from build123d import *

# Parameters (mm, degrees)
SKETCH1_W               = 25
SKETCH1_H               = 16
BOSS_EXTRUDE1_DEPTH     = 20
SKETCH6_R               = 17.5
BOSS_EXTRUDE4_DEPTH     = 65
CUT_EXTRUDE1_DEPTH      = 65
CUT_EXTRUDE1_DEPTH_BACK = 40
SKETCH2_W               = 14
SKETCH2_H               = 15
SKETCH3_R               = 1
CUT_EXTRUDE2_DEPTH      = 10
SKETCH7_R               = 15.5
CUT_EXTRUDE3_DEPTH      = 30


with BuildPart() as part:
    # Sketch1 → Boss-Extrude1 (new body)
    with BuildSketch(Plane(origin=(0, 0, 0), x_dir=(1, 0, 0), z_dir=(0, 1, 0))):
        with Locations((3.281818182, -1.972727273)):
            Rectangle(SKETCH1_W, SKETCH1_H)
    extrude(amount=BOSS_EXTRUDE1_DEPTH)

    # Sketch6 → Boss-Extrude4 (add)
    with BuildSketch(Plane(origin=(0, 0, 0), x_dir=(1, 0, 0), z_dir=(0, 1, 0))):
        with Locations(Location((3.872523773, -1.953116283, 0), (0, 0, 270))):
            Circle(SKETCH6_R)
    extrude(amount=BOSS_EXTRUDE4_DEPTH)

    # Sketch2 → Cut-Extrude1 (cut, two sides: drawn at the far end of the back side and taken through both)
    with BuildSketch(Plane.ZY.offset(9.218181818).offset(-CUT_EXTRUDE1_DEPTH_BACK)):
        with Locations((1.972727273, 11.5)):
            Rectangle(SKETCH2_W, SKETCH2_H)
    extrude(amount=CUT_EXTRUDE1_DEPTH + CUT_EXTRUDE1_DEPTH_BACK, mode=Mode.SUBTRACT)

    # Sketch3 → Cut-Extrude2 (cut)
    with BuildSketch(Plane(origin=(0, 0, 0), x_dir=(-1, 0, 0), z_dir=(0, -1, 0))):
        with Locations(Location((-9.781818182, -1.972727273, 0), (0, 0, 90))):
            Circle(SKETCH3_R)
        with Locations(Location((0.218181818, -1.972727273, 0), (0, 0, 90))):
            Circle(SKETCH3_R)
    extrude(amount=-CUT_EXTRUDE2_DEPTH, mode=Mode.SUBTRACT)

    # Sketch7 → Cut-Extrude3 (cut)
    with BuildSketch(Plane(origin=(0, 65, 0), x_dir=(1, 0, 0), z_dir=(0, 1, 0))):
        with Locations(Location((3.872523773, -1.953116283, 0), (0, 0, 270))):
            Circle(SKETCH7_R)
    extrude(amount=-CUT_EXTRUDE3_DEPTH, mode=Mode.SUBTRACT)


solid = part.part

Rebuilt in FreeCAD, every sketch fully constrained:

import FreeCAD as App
import Part
import Sketcher
from FreeCAD import Vector
Q = App.Units.Quantity


def add_polygon(sketch, points):
    """Adds a closed chain of lines whose ends are joined by coincident constraints."""
    first, n = sketch.GeometryCount, len(points)
    for a, b in zip(points, points[1:] + points[:1]):
        sketch.addGeometry(Part.LineSegment(App.Vector(*a, 0), App.Vector(*b, 0)), False)
    for i in range(n):
        sketch.addConstraint(Sketcher.Constraint("Coincident", first + i, 2, first + (i + 1) % n, 1))

doc = App.newDocument("Part")
body = doc.addObject("PartDesign::Body", "Body")

# Sketch on XZ plane
sketch1 = body.newObject("Sketcher::SketchObject", "Sketch")
sketch1.AttachmentSupport = (doc.getObject("XZ_Plane"), [""])
sketch1.MapMode = "FlatFace"
add_polygon(sketch1, [(-9, -6), (-9, 10), (16, 10), (16, -6)])  # lines 0-3
sketch1.addConstraint([
    Sketcher.Constraint("Vertical", 0),
    Sketcher.Constraint("Horizontal", 1),
    Sketcher.Constraint("Vertical", 2),
    Sketcher.Constraint("Horizontal", 3),
    Sketcher.Constraint("DistanceX", 1, 1, 1, 2, Q("25 mm")),
    Sketcher.Constraint("DistanceY", 0, 1, 0, 2, Q("16 mm")),
    Sketcher.Constraint("DistanceX", 0, 2, -1, 1, Q("9.218182 mm")),
    Sketcher.Constraint("DistanceY", -1, 1, 0, 2, Q("9.972727 mm")),
])
pad1 = body.newObject("PartDesign::Pad", "Pad")
pad1.Profile = sketch1
pad1.Length = 20
pad1.Reversed = True

# Sketch on XZ plane
sketch2 = body.newObject("Sketcher::SketchObject", "Sketch001")
sketch2.AttachmentSupport = (doc.getObject("XZ_Plane"), [""])
sketch2.MapMode = "FlatFace"
sketch2.addGeometry(Part.Circle(Vector(4, 2, 0), Vector(0, 0, 1), 18), False)
sketch2.addConstraint([
    Sketcher.Constraint("Diameter", 0, Q("35 mm")),
    Sketcher.Constraint("DistanceX", -1, 1, 0, 3, Q("3.872524 mm")),
    Sketcher.Constraint("DistanceY", -1, 1, 0, 3, Q("1.953116 mm")),
])
pad2 = body.newObject("PartDesign::Pad", "Pad001")
pad2.Profile = sketch2
pad2.Length = 65
pad2.Reversed = True

# Sketch on YZ plane
sketch3 = body.newObject("Sketcher::SketchObject", "Sketch002")
sketch3.AttachmentSupport = (doc.getObject("YZ_Plane"), [""])
sketch3.MapMode = "FlatFace"
sketch3.AttachmentOffset = App.Placement(Vector(0, 0, -9.218182), App.Rotation())
add_polygon(sketch3, [(19, -5), (4, -5), (4, 9), (19, 9)])  # lines 0-3
sketch3.addConstraint([
    Sketcher.Constraint("Horizontal", 0),
    Sketcher.Constraint("Vertical", 1),
    Sketcher.Constraint("Horizontal", 2),
    Sketcher.Constraint("Vertical", 3),
    Sketcher.Constraint("DistanceX", 0, 2, 0, 1, Q("15 mm")),
    Sketcher.Constraint("DistanceY", 1, 1, 1, 2, Q("14 mm")),
    Sketcher.Constraint("DistanceX", -1, 1, 0, 2, Q("4 mm")),
    Sketcher.Constraint("DistanceY", 0, 2, -1, 1, Q("5.027273 mm")),
])
pocket1 = body.newObject("PartDesign::Pocket", "Pocket")
pocket1.Profile = sketch3
pocket1.Type = "ThroughAll"
pocket1.Midplane = True

# Sketch on XZ plane
sketch4 = body.newObject("Sketcher::SketchObject", "Sketch003")
sketch4.AttachmentSupport = (doc.getObject("XZ_Plane"), [""])
sketch4.MapMode = "FlatFace"
sketch4.addGeometry([
    Part.Circle(Vector(9.8, 2, 0), Vector(0, 0, 1), 1),
    Part.Circle(Vector(-0.2, 2, 0), Vector(0, 0, 1), 1),
], False)
sketch4.addConstraint([
    Sketcher.Constraint("Equal", 0, 1),
    Sketcher.Constraint("Horizontal", 0, 3, 1, 3),
    Sketcher.Constraint("Diameter", 0, Q("2 mm")),
    Sketcher.Constraint("DistanceX", 1, 3, 0, 3, Q("10 mm")),
    Sketcher.Constraint("DistanceX", -1, 1, 0, 3, Q("9.781818 mm")),
    Sketcher.Constraint("DistanceY", -1, 1, 0, 3, Q("1.972727 mm")),
])
pocket2 = body.newObject("PartDesign::Pocket", "Pocket001")
pocket2.Profile = sketch4
pocket2.Length = 10

# Sketch on XZ plane
sketch5 = body.newObject("Sketcher::SketchObject", "Sketch004")
sketch5.AttachmentSupport = (doc.getObject("XZ_Plane"), [""])
sketch5.MapMode = "FlatFace"
sketch5.AttachmentOffset = App.Placement(Vector(0, 0, -65), App.Rotation())
sketch5.addGeometry(Part.Circle(Vector(4, 2, 0), Vector(0, 0, 1), 16), False)
sketch5.addConstraint([
    Sketcher.Constraint("Diameter", 0, Q("31 mm")),
    Sketcher.Constraint("DistanceX", -1, 1, 0, 3, Q("3.872524 mm")),
    Sketcher.Constraint("DistanceY", -1, 1, 0, 3, Q("1.953116 mm")),
])
pocket3 = body.newObject("PartDesign::Pocket", "Pocket002")
pocket3.Profile = sketch5
pocket3.Length = 30
pocket3.Reversed = True

doc.recompute()
